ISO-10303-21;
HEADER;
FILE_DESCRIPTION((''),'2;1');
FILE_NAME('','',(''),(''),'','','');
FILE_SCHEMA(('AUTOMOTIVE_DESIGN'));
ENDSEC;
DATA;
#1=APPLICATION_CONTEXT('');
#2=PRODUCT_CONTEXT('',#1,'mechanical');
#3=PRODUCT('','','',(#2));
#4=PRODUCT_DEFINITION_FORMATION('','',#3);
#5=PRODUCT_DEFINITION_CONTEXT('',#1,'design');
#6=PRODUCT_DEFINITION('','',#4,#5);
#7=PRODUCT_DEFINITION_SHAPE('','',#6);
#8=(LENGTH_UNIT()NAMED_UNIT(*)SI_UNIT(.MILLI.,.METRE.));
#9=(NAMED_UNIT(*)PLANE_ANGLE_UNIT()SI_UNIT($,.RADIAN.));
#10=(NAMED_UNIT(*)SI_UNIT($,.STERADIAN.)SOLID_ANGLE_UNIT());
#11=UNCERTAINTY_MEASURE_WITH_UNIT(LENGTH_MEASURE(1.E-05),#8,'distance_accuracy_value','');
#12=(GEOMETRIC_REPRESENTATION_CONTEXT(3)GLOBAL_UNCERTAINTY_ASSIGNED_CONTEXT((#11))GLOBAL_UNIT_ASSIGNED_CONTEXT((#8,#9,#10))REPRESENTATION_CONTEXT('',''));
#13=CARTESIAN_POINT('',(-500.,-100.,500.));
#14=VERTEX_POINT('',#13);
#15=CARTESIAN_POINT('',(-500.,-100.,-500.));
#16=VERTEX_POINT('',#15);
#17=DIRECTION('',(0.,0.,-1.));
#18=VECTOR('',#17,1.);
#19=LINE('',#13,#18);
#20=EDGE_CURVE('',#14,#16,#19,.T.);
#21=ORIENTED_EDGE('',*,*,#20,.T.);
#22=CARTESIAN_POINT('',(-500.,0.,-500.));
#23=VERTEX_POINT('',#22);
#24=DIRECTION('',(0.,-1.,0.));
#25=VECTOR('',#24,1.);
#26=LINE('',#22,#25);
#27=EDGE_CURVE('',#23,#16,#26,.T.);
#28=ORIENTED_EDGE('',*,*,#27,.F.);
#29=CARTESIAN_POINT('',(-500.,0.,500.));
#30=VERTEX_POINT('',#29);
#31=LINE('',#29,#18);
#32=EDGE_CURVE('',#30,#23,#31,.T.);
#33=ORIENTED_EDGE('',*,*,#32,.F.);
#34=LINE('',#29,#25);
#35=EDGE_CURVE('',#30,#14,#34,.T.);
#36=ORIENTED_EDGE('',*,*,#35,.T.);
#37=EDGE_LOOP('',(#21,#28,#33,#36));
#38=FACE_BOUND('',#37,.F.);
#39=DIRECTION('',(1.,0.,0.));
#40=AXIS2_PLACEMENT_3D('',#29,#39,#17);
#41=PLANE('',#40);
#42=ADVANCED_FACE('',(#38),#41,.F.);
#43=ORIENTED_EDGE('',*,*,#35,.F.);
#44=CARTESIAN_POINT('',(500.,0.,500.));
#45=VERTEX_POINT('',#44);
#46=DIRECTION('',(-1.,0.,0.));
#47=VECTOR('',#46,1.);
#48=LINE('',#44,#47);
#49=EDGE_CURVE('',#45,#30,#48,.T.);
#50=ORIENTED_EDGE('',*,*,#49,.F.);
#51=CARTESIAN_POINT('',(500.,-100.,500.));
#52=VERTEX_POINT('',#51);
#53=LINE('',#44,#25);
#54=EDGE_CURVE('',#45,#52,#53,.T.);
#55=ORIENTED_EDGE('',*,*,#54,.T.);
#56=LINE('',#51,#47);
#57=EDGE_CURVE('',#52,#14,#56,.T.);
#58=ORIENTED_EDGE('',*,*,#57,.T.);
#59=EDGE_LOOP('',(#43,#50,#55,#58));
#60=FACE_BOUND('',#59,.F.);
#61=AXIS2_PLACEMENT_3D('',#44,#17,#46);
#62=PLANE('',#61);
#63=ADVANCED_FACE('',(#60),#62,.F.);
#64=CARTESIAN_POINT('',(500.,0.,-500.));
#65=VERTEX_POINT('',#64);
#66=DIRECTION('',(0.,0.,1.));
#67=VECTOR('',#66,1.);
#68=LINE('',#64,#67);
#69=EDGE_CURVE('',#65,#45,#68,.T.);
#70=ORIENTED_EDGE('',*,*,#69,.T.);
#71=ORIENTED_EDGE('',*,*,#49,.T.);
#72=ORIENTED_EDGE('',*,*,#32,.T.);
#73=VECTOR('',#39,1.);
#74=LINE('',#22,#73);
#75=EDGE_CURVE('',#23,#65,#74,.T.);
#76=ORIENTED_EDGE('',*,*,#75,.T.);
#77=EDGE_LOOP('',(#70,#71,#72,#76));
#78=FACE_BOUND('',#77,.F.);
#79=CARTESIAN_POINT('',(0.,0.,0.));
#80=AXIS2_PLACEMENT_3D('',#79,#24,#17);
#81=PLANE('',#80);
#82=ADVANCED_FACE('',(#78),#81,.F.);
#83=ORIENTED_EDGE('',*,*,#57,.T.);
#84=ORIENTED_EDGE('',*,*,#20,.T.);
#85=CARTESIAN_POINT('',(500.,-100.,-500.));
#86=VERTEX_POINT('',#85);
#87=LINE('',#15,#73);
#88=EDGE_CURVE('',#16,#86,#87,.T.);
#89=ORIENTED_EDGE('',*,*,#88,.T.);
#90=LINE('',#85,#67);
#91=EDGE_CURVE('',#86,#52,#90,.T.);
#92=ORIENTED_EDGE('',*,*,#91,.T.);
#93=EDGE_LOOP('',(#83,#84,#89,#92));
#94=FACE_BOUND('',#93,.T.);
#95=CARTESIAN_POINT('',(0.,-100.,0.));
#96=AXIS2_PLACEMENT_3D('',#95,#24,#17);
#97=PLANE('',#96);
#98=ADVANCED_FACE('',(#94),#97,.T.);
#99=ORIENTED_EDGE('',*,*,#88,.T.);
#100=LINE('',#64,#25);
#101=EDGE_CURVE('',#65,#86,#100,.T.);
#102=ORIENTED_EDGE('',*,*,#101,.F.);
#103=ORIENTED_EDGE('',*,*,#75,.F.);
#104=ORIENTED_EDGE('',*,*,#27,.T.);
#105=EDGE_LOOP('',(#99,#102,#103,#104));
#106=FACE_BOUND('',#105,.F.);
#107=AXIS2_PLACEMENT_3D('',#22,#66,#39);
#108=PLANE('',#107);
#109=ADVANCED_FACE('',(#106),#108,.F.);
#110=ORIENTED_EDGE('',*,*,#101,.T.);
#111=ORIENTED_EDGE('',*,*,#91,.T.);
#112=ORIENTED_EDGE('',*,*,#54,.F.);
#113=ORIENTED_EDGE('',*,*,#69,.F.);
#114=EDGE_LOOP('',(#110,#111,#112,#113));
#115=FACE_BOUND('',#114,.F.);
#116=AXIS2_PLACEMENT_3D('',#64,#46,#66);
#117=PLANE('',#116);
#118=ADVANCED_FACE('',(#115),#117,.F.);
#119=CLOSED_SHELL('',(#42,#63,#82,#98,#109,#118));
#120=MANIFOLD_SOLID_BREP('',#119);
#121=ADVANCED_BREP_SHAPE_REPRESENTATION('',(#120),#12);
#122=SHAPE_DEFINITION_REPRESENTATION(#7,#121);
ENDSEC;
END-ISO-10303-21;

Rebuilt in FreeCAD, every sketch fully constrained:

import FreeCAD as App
import Part
import Sketcher

V = App.Vector

doc = App.newDocument("Part")
params = doc.addObject("Spreadsheet::Sheet", "Params")
for row, (alias, value) in enumerate([
    ("sketch1_width", "1000 mm"),
    ("pad1_length", "100 mm"),
], start=1):
    params.set(f"A{row}", alias)
    params.set(f"B{row}", "=" + value)
    params.setAlias(f"B{row}", alias)

body = doc.addObject("PartDesign::Body", "Body")

# Sketch on XZ plane
sketch1 = doc.addObject("Sketcher::SketchObject", "Sketch")
body.addObject(sketch1)
sketch1.AttachmentSupport = (doc.XZ_Plane, [""])
sketch1.MapMode = "FlatFace"
sketch1.addGeometry(Part.LineSegment(V(-500, -500, 0), V(500, -500, 0)), False)
sketch1.addGeometry(Part.LineSegment(V(500, -500, 0), V(500, 500, 0)), False)
sketch1.addGeometry(Part.LineSegment(V(500, 500, 0), V(-500, 500, 0)), False)
sketch1.addGeometry(Part.LineSegment(V(-500, 500, 0), V(-500, -500, 0)), False)
sketch1.addConstraint(Sketcher.Constraint("Coincident", 0, 2, 1, 1))
sketch1.addConstraint(Sketcher.Constraint("Coincident", 1, 2, 2, 1))
sketch1.addConstraint(Sketcher.Constraint("Coincident", 2, 2, 3, 1))
sketch1.addConstraint(Sketcher.Constraint("Coincident", 3, 2, 0, 1))
sketch1.addConstraint(Sketcher.Constraint("Horizontal", 0))
sketch1.addConstraint(Sketcher.Constraint("Vertical", 1))
sketch1.addConstraint(Sketcher.Constraint("Horizontal", 2))
sketch1.addConstraint(Sketcher.Constraint("Vertical", 3))
sketch1.addConstraint(Sketcher.Constraint("Symmetric", 0, 2, 2, 2, -1, 1))
sketch1.addConstraint(Sketcher.Constraint("Equal", 2, 1))
sketch1.addConstraint(Sketcher.Constraint("DistanceX", 0, 1, 0, 2, 1000.0))
sketch1.setExpression("Constraints[10]", "Params.sketch1_width")
pad1 = doc.addObject("PartDesign::Pad", "Pad")
body.addObject(pad1)
pad1.Profile = sketch1
pad1.setExpression("Length", "Params.pad1_length")

doc.recompute()
